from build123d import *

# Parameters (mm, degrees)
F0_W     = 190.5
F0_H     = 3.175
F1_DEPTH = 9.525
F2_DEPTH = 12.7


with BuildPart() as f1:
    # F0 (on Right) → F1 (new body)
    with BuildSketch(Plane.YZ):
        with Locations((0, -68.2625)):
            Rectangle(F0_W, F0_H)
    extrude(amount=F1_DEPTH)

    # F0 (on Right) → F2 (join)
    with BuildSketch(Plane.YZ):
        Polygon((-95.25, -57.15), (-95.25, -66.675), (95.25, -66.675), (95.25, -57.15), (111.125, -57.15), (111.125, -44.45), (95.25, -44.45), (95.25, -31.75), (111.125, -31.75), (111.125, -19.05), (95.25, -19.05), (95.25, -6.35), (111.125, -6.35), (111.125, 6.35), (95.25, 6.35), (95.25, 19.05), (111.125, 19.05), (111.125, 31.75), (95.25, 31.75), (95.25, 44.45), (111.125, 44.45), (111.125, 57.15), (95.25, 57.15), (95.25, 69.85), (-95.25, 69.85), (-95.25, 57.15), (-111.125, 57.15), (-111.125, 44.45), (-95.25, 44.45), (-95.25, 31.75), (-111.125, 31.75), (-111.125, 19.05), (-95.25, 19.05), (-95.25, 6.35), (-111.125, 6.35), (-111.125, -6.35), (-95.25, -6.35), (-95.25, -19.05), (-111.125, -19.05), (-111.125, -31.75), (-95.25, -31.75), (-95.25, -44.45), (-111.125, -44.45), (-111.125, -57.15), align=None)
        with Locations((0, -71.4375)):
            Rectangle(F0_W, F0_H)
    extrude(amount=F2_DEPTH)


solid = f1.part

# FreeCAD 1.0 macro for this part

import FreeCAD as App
import Part
import Sketcher

V = App.Vector
Q = App.Units.Quantity

doc = App.newDocument("Part")
body = doc.addObject("PartDesign::Body", "Body")

# Sketch on YZ plane
sketch1 = body.newObject("Sketcher::SketchObject", "Sketch")
sketch1.AttachmentSupport = (doc.getObject("YZ_Plane"), [""])
sketch1.MapMode = "FlatFace"
sketch1.addGeometry([
    Part.LineSegment(V(-95.25, -66.675, 0), V(-95.25, -69.85, 0)),
    Part.LineSegment(V(-95.25, -69.85, 0), V(95.25, -69.85, 0)),
    Part.LineSegment(V(95.25, -69.85, 0), V(95.25, -66.675, 0)),
    Part.LineSegment(V(95.25, -66.675, 0), V(-95.25, -66.675, 0)),
], False)
sketch1.addConstraint([
    Sketcher.Constraint("Coincident", 0, 2, 1, 1),
    Sketcher.Constraint("Coincident", 1, 2, 2, 1),
    Sketcher.Constraint("Coincident", 2, 2, 3, 1),
    Sketcher.Constraint("Coincident", 3, 2, 0, 1),
    Sketcher.Constraint("Vertical", 0),
    Sketcher.Constraint("Horizontal", 1),
    Sketcher.Constraint("Vertical", 2),
    Sketcher.Constraint("Horizontal", 3),
    Sketcher.Constraint("DistanceX", 1, 1, 1, 2, Q("7.5 in")),
    Sketcher.Constraint("DistanceY", 0, 2, 0, 1, Q("0.125 in")),
    Sketcher.Constraint("DistanceX", 0, 2, -1, 1, Q("3.75 in")),
    Sketcher.Constraint("DistanceY", 0, 2, -1, 1, Q("2.75 in")),
])
pad1 = body.newObject("PartDesign::Pad", "Pad")
pad1.Profile = sketch1
pad1.Length = Q("0.375 in")

# Sketch on YZ plane
sketch2 = body.newObject("Sketcher::SketchObject", "Sketch001")
sketch2.AttachmentSupport = (doc.getObject("YZ_Plane"), [""])
sketch2.MapMode = "FlatFace"
sketch2.addGeometry([
    Part.LineSegment(V(-95.25, -57.15, 0), V(-95.25, -66.675, 0)),  # 0
    Part.LineSegment(V(-95.25, -66.675, 0), V(95.25, -66.675, 0)),  # 1
    Part.LineSegment(V(95.25, -66.675, 0), V(95.25, -57.15, 0)),  # 2
    Part.LineSegment(V(95.25, -57.15, 0), V(111.125, -57.15, 0)),  # 3
    Part.LineSegment(V(111.125, -57.15, 0), V(111.125, -44.45, 0)),  # 4
    Part.LineSegment(V(111.125, -44.45, 0), V(95.25, -44.45, 0)),  # 5
    Part.LineSegment(V(95.25, -44.45, 0), V(95.25, -31.75, 0)),  # 6
    Part.LineSegment(V(95.25, -31.75, 0), V(111.125, -31.75, 0)),  # 7
    Part.LineSegment(V(111.125, -31.75, 0), V(111.125, -19.05, 0)),  # 8
    Part.LineSegment(V(111.125, -19.05, 0), V(95.25, -19.05, 0)),  # 9
    Part.LineSegment(V(95.25, -19.05, 0), V(95.25, -6.35, 0)),  # 10
    Part.LineSegment(V(95.25, -6.35, 0), V(111.125, -6.35, 0)),  # 11
    Part.LineSegment(V(111.125, -6.35, 0), V(111.125, 6.35, 0)),  # 12
    Part.LineSegment(V(111.125, 6.35, 0), V(95.25, 6.35, 0)),  # 13
    Part.LineSegment(V(95.25, 6.35, 0), V(95.25, 19.05, 0)),  # 14
    Part.LineSegment(V(95.25, 19.05, 0), V(111.125, 19.05, 0)),  # 15
    Part.LineSegment(V(111.125, 19.05, 0), V(111.125, 31.75, 0)),  # 16
    Part.LineSegment(V(111.125, 31.75, 0), V(95.25, 31.75, 0)),  # 17
    Part.LineSegment(V(95.25, 31.75, 0), V(95.25, 44.45, 0)),  # 18
    Part.LineSegment(V(95.25, 44.45, 0), V(111.125, 44.45, 0)),  # 19
    Part.LineSegment(V(111.125, 44.45, 0), V(111.125, 57.15, 0)),  # 20
    Part.LineSegment(V(111.125, 57.15, 0), V(95.25, 57.15, 0)),  # 21
    Part.LineSegment(V(95.25, 57.15, 0), V(95.25, 69.85, 0)),  # 22
    Part.LineSegment(V(95.25, 69.85, 0), V(-95.25, 69.85, 0)),  # 23
    Part.LineSegment(V(-95.25, 69.85, 0), V(-95.25, 57.15, 0)),  # 24
    Part.LineSegment(V(-95.25, 57.15, 0), V(-111.125, 57.15, 0)),  # 25
    Part.LineSegment(V(-111.125, 57.15, 0), V(-111.125, 44.45, 0)),  # 26
    Part.LineSegment(V(-111.125, 44.45, 0), V(-95.25, 44.45, 0)),  # 27
    Part.LineSegment(V(-95.25, 44.45, 0), V(-95.25, 31.75, 0)),  # 28
    Part.LineSegment(V(-95.25, 31.75, 0), V(-111.125, 31.75, 0)),  # 29
    Part.LineSegment(V(-111.125, 31.75, 0), V(-111.125, 19.05, 0)),  # 30
    Part.LineSegment(V(-111.125, 19.05, 0), V(-95.25, 19.05, 0)),  # 31
    Part.LineSegment(V(-95.25, 19.05, 0), V(-95.25, 6.35, 0)),  # 32
    Part.LineSegment(V(-95.25, 6.35, 0), V(-111.125, 6.35, 0)),  # 33
    Part.LineSegment(V(-111.125, 6.35, 0), V(-111.125, -6.35, 0)),  # 34
    Part.LineSegment(V(-111.125, -6.35, 0), V(-95.25, -6.35, 0)),  # 35
    Part.LineSegment(V(-95.25, -6.35, 0), V(-95.25, -19.05, 0)),  # 36
    Part.LineSegment(V(-95.25, -19.05, 0), V(-111.125, -19.05, 0)),  # 37
    Part.LineSegment(V(-111.125, -19.05, 0), V(-111.125, -31.75, 0)),  # 38
    Part.LineSegment(V(-111.125, -31.75, 0), V(-95.25, -31.75, 0)),  # 39
    Part.LineSegment(V(-95.25, -31.75, 0), V(-95.25, -44.45, 0)),  # 40
    Part.LineSegment(V(-95.25, -44.45, 0), V(-111.125, -44.45, 0)),  # 41
    Part.LineSegment(V(-111.125, -44.45, 0), V(-111.125, -57.15, 0)),  # 42
    Part.LineSegment(V(-111.125, -57.15, 0), V(-95.25, -57.15, 0)),  # 43
    Part.LineSegment(V(-95.25, -69.85, 0), V(-95.25, -73.025, 0)),  # 44
    Part.LineSegment(V(-95.25, -73.025, 0), V(95.25, -73.025, 0)),  # 45
    Part.LineSegment(V(95.25, -73.025, 0), V(95.25, -69.85, 0)),  # 46
    Part.LineSegment(V(95.25, -69.85, 0), V(-95.25, -69.85, 0)),  # 47
], False)
sketch2.addConstraint([
    Sketcher.Constraint("Coincident", 0, 2, 1, 1),
    Sketcher.Constraint("Coincident", 1, 2, 2, 1),
    Sketcher.Constraint("Coincident", 2, 2, 3, 1),
    Sketcher.Constraint("Coincident", 3, 2, 4, 1),
    Sketcher.Constraint("Coincident", 4, 2, 5, 1),
    Sketcher.Constraint("Coincident", 5, 2, 6, 1),
    Sketcher.Constraint("Coincident", 6, 2, 7, 1),
    Sketcher.Constraint("Coincident", 7, 2, 8, 1),
    Sketcher.Constraint("Coincident", 8, 2, 9, 1),
    Sketcher.Constraint("Coincident", 9, 2, 10, 1),
    Sketcher.Constraint("Coincident", 10, 2, 11, 1),
    Sketcher.Constraint("Coincident", 11, 2, 12, 1),
    Sketcher.Constraint("Coincident", 12, 2, 13, 1),
    Sketcher.Constraint("Coincident", 13, 2, 14, 1),
    Sketcher.Constraint("Coincident", 14, 2, 15, 1),
    Sketcher.Constraint("Coincident", 15, 2, 16, 1),
    Sketcher.Constraint("Coincident", 16, 2, 17, 1),
    Sketcher.Constraint("Coincident", 17, 2, 18, 1),
    Sketcher.Constraint("Coincident", 18, 2, 19, 1),
    Sketcher.Constraint("Coincident", 19, 2, 20, 1),
    Sketcher.Constraint("Coincident", 20, 2, 21, 1),
    Sketcher.Constraint("Coincident", 21, 2, 22, 1),
    Sketcher.Constraint("Coincident", 22, 2, 23, 1),
    Sketcher.Constraint("Coincident", 23, 2, 24, 1),
    Sketcher.Constraint("Coincident", 24, 2, 25, 1),
    Sketcher.Constraint("Coincident", 25, 2, 26, 1),
    Sketcher.Constraint("Coincident", 26, 2, 27, 1),
    Sketcher.Constraint("Coincident", 27, 2, 28, 1),
    Sketcher.Constraint("Coincident", 28, 2, 29, 1),
    Sketcher.Constraint("Coincident", 29, 2, 30, 1),
    Sketcher.Constraint("Coincident", 30, 2, 31, 1),
    Sketcher.Constraint("Coincident", 31, 2, 32, 1),
    Sketcher.Constraint("Coincident", 32, 2, 33, 1),
    Sketcher.Constraint("Coincident", 33, 2, 34, 1),
    Sketcher.Constraint("Coincident", 34, 2, 35, 1),
    Sketcher.Constraint("Coincident", 35, 2, 36, 1),
    Sketcher.Constraint("Coincident", 36, 2, 37, 1),
    Sketcher.Constraint("Coincident", 37, 2, 38, 1),
    Sketcher.Constraint("Coincident", 38, 2, 39, 1),
    Sketcher.Constraint("Coincident", 39, 2, 40, 1),
    Sketcher.Constraint("Coincident", 40, 2, 41, 1),
    Sketcher.Constraint("Coincident", 41, 2, 42, 1),
    Sketcher.Constraint("Coincident", 42, 2, 43, 1),
    Sketcher.Constraint("Coincident", 43, 2, 0, 1),
    Sketcher.Constraint("Coincident", 44, 2, 45, 1),
    Sketcher.Constraint("Coincident", 45, 2, 46, 1),
    Sketcher.Constraint("Coincident", 46, 2, 47, 1),
    Sketcher.Constraint("Coincident", 47, 2, 44, 1),
    Sketcher.Constraint("Vertical", 0),
    Sketcher.Constraint("Horizontal", 1),
    Sketcher.Constraint("Vertical", 2),
    Sketcher.Constraint("Horizontal", 3),
    Sketcher.Constraint("Vertical", 4),
    Sketcher.Constraint("Horizontal", 5),
    Sketcher.Constraint("Vertical", 6),
    Sketcher.Constraint("Horizontal", 7),
    Sketcher.Constraint("Vertical", 8),
    Sketcher.Constraint("Horizontal", 9),
    Sketcher.Constraint("Vertical", 10),
    Sketcher.Constraint("Horizontal", 11),
    Sketcher.Constraint("Vertical", 12),
    Sketcher.Constraint("Horizontal", 13),
    Sketcher.Constraint("Vertical", 14),
    Sketcher.Constraint("Horizontal", 15),
    Sketcher.Constraint("Vertical", 16),
    Sketcher.Constraint("Horizontal", 17),
    Sketcher.Constraint("Vertical", 18),
    Sketcher.Constraint("Horizontal", 19),
    Sketcher.Constraint("Vertical", 20),
    Sketcher.Constraint("Horizontal", 21),
    Sketcher.Constraint("Vertical", 22),
    Sketcher.Constraint("Horizontal", 23),
    Sketcher.Constraint("Vertical", 24),
    Sketcher.Constraint("Horizontal", 25),
    Sketcher.Constraint("Vertical", 26),
    Sketcher.Constraint("Horizontal", 27),
    Sketcher.Constraint("Vertical", 28),
    Sketcher.Constraint("Horizontal", 29),
    Sketcher.Constraint("Vertical", 30),
    Sketcher.Constraint("Horizontal", 31),
    Sketcher.Constraint("Vertical", 32),
    Sketcher.Constraint("Horizontal", 33),
    Sketcher.Constraint("Vertical", 34),
    Sketcher.Constraint("Horizontal", 35),
    Sketcher.Constraint("Vertical", 36),
    Sketcher.Constraint("Horizontal", 37),
    Sketcher.Constraint("Vertical", 38),
    Sketcher.Constraint("Horizontal", 39),
    Sketcher.Constraint("Vertical", 40),
    Sketcher.Constraint("Horizontal", 41),
    Sketcher.Constraint("Vertical", 42),
    Sketcher.Constraint("Horizontal", 43),
    Sketcher.Constraint("Vertical", 44),
    Sketcher.Constraint("Horizontal", 45),
    Sketcher.Constraint("Vertical", 46),
    Sketcher.Constraint("Horizontal", 47),
    Sketcher.Constraint("Symmetric", 2, 2, 24, 2, -1, 1),
    Sketcher.Constraint("Symmetric", 4, 2, 26, 2, -1, 1),
    Sketcher.Constraint("Symmetric", 6, 2, 28, 2, -1, 1),
    Sketcher.Constraint("Symmetric", 8, 2, 30, 2, -1, 1),
    Sketcher.Constraint("Symmetric", 10, 2, 32, 2, -1, 1),
    Sketcher.Constraint("Symmetric", 12, 2, 34, 2, -1, 1),
    Sketcher.Constraint("Symmetric", 14, 2, 36, 2, -1, 1),
    Sketcher.Constraint("Symmetric", 16, 2, 38, 2, -1, 1),
    Sketcher.Constraint("Symmetric", 18, 2, 40, 2, -1, 1),
    Sketcher.Constraint("Symmetric", 20, 2, 42, 2, -1, 1),
    Sketcher.Constraint("Symmetric", 23, 2, 46, 2, -1, 1),
    Sketcher.Constraint("Symmetric", 21, 2, 24, 2, -2),
    Sketcher.Constraint("Symmetric", 19, 2, 26, 2, -2),
    Sketcher.Constraint("Symmetric", 17, 2, 28, 2, -2),
    Sketcher.Constraint("Symmetric", 15, 2, 30, 2, -2),
    Sketcher.Constraint("Symmetric", 13, 2, 32, 2, -2),
    Sketcher.Constraint("Vertical", 2, 2, 5, 2),
    Sketcher.Constraint("Vertical", 4, 2, 7, 2),
    Sketcher.Constraint("Vertical", 6, 2, 9, 2),
    Sketcher.Constraint("Vertical", 8, 2, 11, 2),
    Sketcher.Constraint("Vertical", 0, 2, 23, 2),
    Sketcher.Constraint("Vertical", 43, 2, 44, 2),
    Sketcher.Constraint("Equal", 4, 6),
    Sketcher.Constraint("Equal", 6, 8),
    Sketcher.Constraint("Equal", 8, 10),
    Sketcher.Constraint("Equal", 10, 12),
    Sketcher.Constraint("Equal", 20, 22),
    Sketcher.Constraint("DistanceX", 1, 1, 1, 2, Q("7.5 in")),
    Sketcher.Constraint("DistanceY", 4, 1, 4, 2, Q("0.5 in")),
    Sketcher.Constraint("DistanceX", 3, 1, 3, 2, Q("0.625 in")),
    Sketcher.Constraint("DistanceY", 0, 2, 0, 1, Q("0.375 in")),
    Sketcher.Constraint("DistanceY", 44, 2, 44, 1, Q("0.125 in")),
])
pad2 = body.newObject("PartDesign::Pad", "Pad001")
pad2.Profile = sketch2
pad2.Length = Q("0.5 in")

doc.recompute()
